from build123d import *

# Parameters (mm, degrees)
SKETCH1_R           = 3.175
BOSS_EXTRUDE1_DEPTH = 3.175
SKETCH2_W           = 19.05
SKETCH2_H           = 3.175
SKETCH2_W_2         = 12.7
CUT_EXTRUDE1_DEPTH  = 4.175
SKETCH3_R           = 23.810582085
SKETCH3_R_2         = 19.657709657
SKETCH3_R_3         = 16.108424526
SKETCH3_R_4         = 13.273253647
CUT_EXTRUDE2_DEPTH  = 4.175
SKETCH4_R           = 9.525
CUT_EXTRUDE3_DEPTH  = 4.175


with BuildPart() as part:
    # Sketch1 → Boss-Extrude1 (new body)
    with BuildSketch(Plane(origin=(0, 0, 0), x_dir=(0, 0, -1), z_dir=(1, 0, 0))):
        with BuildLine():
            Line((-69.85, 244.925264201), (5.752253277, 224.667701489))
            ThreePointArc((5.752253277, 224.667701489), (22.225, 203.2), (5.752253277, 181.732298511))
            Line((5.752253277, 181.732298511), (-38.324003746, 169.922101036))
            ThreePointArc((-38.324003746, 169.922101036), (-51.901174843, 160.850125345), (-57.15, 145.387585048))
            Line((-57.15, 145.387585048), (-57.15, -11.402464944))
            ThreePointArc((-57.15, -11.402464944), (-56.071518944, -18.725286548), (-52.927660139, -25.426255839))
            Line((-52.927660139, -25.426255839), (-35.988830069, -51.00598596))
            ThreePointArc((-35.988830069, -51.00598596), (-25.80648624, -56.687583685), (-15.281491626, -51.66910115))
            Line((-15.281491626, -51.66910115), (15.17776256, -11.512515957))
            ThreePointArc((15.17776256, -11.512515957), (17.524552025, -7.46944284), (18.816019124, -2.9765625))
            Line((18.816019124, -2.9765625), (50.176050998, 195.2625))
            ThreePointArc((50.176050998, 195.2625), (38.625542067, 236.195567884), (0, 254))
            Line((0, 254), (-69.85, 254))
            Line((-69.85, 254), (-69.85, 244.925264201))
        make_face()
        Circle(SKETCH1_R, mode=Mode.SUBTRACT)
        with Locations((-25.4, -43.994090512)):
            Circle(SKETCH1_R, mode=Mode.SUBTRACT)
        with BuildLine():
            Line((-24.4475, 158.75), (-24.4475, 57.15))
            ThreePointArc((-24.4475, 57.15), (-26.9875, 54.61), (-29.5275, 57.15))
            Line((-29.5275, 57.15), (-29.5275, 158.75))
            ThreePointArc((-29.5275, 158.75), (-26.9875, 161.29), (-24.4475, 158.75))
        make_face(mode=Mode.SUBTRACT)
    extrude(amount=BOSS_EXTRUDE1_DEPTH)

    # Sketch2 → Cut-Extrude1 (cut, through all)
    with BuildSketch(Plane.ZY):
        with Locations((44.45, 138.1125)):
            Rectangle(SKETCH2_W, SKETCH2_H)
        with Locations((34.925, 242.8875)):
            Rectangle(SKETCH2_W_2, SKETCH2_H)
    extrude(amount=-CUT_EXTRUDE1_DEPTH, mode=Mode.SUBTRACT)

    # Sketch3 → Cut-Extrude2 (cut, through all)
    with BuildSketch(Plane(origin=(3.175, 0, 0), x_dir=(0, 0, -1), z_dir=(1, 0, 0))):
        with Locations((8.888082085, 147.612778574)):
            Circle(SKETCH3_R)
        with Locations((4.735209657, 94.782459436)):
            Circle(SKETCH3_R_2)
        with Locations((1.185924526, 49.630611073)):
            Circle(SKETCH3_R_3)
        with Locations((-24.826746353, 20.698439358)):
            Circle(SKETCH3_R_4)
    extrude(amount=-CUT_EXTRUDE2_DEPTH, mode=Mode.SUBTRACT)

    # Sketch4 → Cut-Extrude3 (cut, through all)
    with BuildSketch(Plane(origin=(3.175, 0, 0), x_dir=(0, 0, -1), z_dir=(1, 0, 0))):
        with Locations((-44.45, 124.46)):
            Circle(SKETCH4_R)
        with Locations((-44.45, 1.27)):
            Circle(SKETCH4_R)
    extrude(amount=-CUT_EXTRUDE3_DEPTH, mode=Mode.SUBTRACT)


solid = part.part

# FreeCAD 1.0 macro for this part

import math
import FreeCAD as App
import Part
import Sketcher
Q = App.Units.Quantity


def add_polygon(sketch, points):
    """Adds a closed chain of lines whose ends are joined by coincident constraints."""
    first, n = sketch.GeometryCount, len(points)
    for a, b in zip(points, points[1:] + points[:1]):
        sketch.addGeometry(Part.LineSegment(App.Vector(*a, 0), App.Vector(*b, 0)), False)
    for i in range(n):
        sketch.addConstraint(Sketcher.Constraint("Coincident", first + i, 2, first + (i + 1) % n, 1))

doc = App.newDocument("Part")
body = doc.addObject("PartDesign::Body", "Body")

# Sketch on YZ plane
sketch1 = body.newObject("Sketcher::SketchObject", "Sketch")
sketch1.AttachmentSupport = (doc.getObject("YZ_Plane"), [""])
sketch1.MapMode = "FlatFace"
sketch1.addGeometry([
    Part.LineSegment(App.Vector(244.9, 69.8, 0), App.Vector(224.7, -5.8, 0)),  # 0
    Part.ArcOfCircle(Part.Circle(App.Vector(203.2, 0, 0), App.Vector(0, 0, 1), 22.2), math.radians(-165), math.radians(-15)),  # 1
    Part.LineSegment(App.Vector(181.7, -5.8, 0), App.Vector(169.9, 38.3, 0)),  # 2
    Part.ArcOfCircle(Part.Circle(App.Vector(145.4, 31.7, 0), App.Vector(0, 0, 1), 25.4), math.radians(15), math.radians(90)),  # 3
    Part.LineSegment(App.Vector(145.4, 57.1, 0), App.Vector(-11.4, 57.1, 0)),  # 4
    Part.ArcOfCircle(Part.Circle(App.Vector(-11.4, 31.7, 0), App.Vector(0, 0, 1), 25.4), math.radians(90), math.radians(124)),  # 5
    Part.LineSegment(App.Vector(-25.4, 52.9, 0), App.Vector(-51, 36, 0)),  # 6
    Part.ArcOfCircle(Part.Circle(App.Vector(-44, 25.4, 0), App.Vector(0, 0, 1), 12.7), math.radians(124), math.radians(233)),  # 7
    Part.LineSegment(App.Vector(-51.7, 15.3, 0), App.Vector(-11.5, -15.2, 0)),  # 8
    Part.ArcOfCircle(Part.Circle(App.Vector(0, 0, 0), App.Vector(0, 0, 1), 19), math.radians(-127), math.radians(-99)),  # 9
    Part.LineSegment(App.Vector(-3, -18.8, 0), App.Vector(195.3, -50.2, 0)),  # 10
    Part.ArcOfCircle(Part.Circle(App.Vector(203.2, 0, 0), App.Vector(0, 0, 1), 50.8), math.radians(-99), math.radians(0)),  # 11
    Part.LineSegment(App.Vector(254, 0, 0), App.Vector(254, 69.8, 0)),  # 12
    Part.LineSegment(App.Vector(254, 69.8, 0), App.Vector(244.9, 69.8, 0)),  # 13
    Part.Circle(App.Vector(-44, 25.4, 0), App.Vector(0, 0, 1), 3.2),  # 14
    Part.Circle(App.Vector(0, 0, 0), App.Vector(0, 0, 1), 3.2),  # 15
    Part.ArcOfCircle(Part.Circle(App.Vector(158.8, 27, 0), App.Vector(0, 0, 1), 2.5), math.radians(-90), math.radians(90)),  # 16
    Part.LineSegment(App.Vector(158.8, 24.4, 0), App.Vector(57.1, 24.4, 0)),  # 17
    Part.ArcOfCircle(Part.Circle(App.Vector(57.1, 27, 0), App.Vector(0, 0, 1), 2.5), math.radians(90), math.radians(270)),  # 18
    Part.LineSegment(App.Vector(57.1, 29.5, 0), App.Vector(158.8, 29.5, 0)),  # 19
], False)
sketch1.addConstraint([
    Sketcher.Constraint("Tangent", 0, 2, 1, 2),
    Sketcher.Constraint("Tangent", 1, 1, 2, 1),
    Sketcher.Constraint("Tangent", 2, 2, 3, 1),
    Sketcher.Constraint("Tangent", 3, 2, 4, 1),
    Sketcher.Constraint("Tangent", 4, 2, 5, 1),
    Sketcher.Constraint("Tangent", 5, 2, 6, 1),
    Sketcher.Constraint("Tangent", 6, 2, 7, 1),
    Sketcher.Constraint("Tangent", 7, 2, 8, 1),
    Sketcher.Constraint("Tangent", 8, 2, 9, 1),
    Sketcher.Constraint("Tangent", 9, 2, 10, 1),
    Sketcher.Constraint("Tangent", 10, 2, 11, 1),
    Sketcher.Constraint("Tangent", 11, 2, 12, 1),
    Sketcher.Constraint("Coincident", 12, 2, 13, 1),
    Sketcher.Constraint("Coincident", 13, 2, 0, 1),
    Sketcher.Constraint("Tangent", 16, 1, 17, 1),
    Sketcher.Constraint("Tangent", 17, 2, 18, 2),
    Sketcher.Constraint("Tangent", 18, 1, 19, 1),
    Sketcher.Constraint("Tangent", 19, 2, 16, 2),
    Sketcher.Constraint("Horizontal", 4),
    Sketcher.Constraint("Vertical", 12),
    Sketcher.Constraint("Horizontal", 13),
    Sketcher.Constraint("Horizontal", 17),
    Sketcher.Constraint("Horizontal", 19),
    Sketcher.Constraint("Coincident", 9, 3, -1, 1),
    Sketcher.Constraint("Coincident", 15, 3, -1, 1),
    Sketcher.Constraint("Coincident", 11, 3, 1, 3),
    Sketcher.Constraint("Coincident", 14, 3, 7, 3),
    Sketcher.Constraint("Equal", 3, 5),
    Sketcher.Constraint("Equal", 14, 15),
    Sketcher.Constraint("PointOnObject", 1, 3, -1),
    Sketcher.Constraint("Horizontal", 0, 2, 1, 1),
    Sketcher.Constraint("Radius", 3, Q("1 in")),
    Sketcher.Constraint("Radius", 11, Q("2 in")),
    Sketcher.Constraint("Radius", 7, Q("0.5 in")),
    Sketcher.Constraint("Radius", 16, Q("0.1 in")),
    Sketcher.Constraint("Diameter", 14, Q("0.25 in")),
    Sketcher.Constraint("DistanceX", 17, 2, 17, 1, Q("4 in")),
    Sketcher.Constraint("Radius", 9, Q("0.75 in")),
    Sketcher.Constraint("DistanceX", -1, 1, 1, 3, Q("8 in")),
    Sketcher.Constraint("DistanceY", -1, 1, 7, 3, Q("1 in")),
    Sketcher.Constraint("Angle", 0, Q("-105 deg")),
    Sketcher.Constraint("Radius", 1, Q("0.875 in")),
    Sketcher.Constraint("DistanceY", 12, 1, 12, 2, Q("2.75 in")),
    Sketcher.Constraint("DistanceY", -1, 1, 3, 3, Q("1.25 in")),
    Sketcher.Constraint("DistanceX", -1, 1, 16, 3, Q("6.25 in")),
    Sketcher.Constraint("DistanceY", -1, 1, 16, 3, Q("1.0625 in")),
    Sketcher.Constraint("DistanceX", 4, 2, 4, 1, Q("156.79005 mm")),
    Sketcher.Constraint("DistanceX", 7, 2, -1, 1, Q("51.669101 mm")),
])
pad1 = body.newObject("PartDesign::Pad", "Pad")
pad1.Profile = sketch1
pad1.Length = Q("0.125 in")

# Sketch on YZ plane
sketch2 = body.newObject("Sketcher::SketchObject", "Sketch001")
sketch2.AttachmentSupport = (doc.getObject("YZ_Plane"), [""])
sketch2.MapMode = "FlatFace"
add_polygon(sketch2, [(139.7, 34.9), (136.5, 34.9), (136.5, 54), (139.7, 54)])  # lines 0-3
add_polygon(sketch2, [(244.5, 28.6), (241.3, 28.6), (241.3, 41.3), (244.5, 41.3)])  # lines 4-7
sketch2.addConstraint([
    Sketcher.Constraint("Horizontal", 0),
    Sketcher.Constraint("Vertical", 1),
    Sketcher.Constraint("Horizontal", 2),
    Sketcher.Constraint("Vertical", 3),
    Sketcher.Constraint("Horizontal", 4),
    Sketcher.Constraint("Vertical", 5),
    Sketcher.Constraint("Horizontal", 6),
    Sketcher.Constraint("Vertical", 7),
    Sketcher.Constraint("Equal", 2, 4),
    Sketcher.Constraint("DistanceY", 5, 1, 5, 2, Q("0.5 in")),
    Sketcher.Constraint("DistanceX", 3, 2, 4, 2, Q("4 in")),
    Sketcher.Constraint("DistanceY", 4, 2, 2, 2, Q("1 in")),
    Sketcher.Constraint("DistanceY", 1, 1, 1, 2, Q("0.75 in")),
    Sketcher.Constraint("DistanceX", -1, 1, 2, 2, Q("5.5 in")),
    Sketcher.Constraint("DistanceX", 0, 2, 0, 1, Q("0.125 in")),
    Sketcher.Constraint("DistanceY", -1, 1, 0, 2, Q("1.375 in")),
])
pocket1 = body.newObject("PartDesign::Pocket", "Pocket")
pocket1.Profile = sketch2
pocket1.Type = "ThroughAll"
pocket1.Reversed = True

# Sketch on YZ plane
sketch3 = body.newObject("Sketcher::SketchObject", "Sketch002")
sketch3.AttachmentSupport = (doc.getObject("YZ_Plane"), [""])
sketch3.MapMode = "FlatFace"
sketch3.AttachmentOffset = App.Placement(App.Vector(0, 0, 0.125 * 25.4), App.Rotation())
sketch3.addGeometry([
    Part.Circle(App.Vector(148, -9, 0), App.Vector(0, 0, 1), 24),
    Part.Circle(App.Vector(95, -5, 0), App.Vector(0, 0, 1), 20),
    Part.Circle(App.Vector(50, -1, 0), App.Vector(0, 0, 1), 16),
    Part.Circle(App.Vector(21, 25, 0), App.Vector(0, 0, 1), 13),
], False)
sketch3.addConstraint([
    Sketcher.Constraint("Diameter", 1, Q("39.315419 mm")),
    Sketcher.Constraint("Diameter", 2, Q("32.216849 mm")),
    Sketcher.Constraint("Diameter", 0, Q("47.621164 mm")),
    Sketcher.Constraint("Diameter", 3, Q("26.546507 mm")),
    Sketcher.Constraint("DistanceX", -1, 1, 0, 3, Q("147.612779 mm")),
    Sketcher.Constraint("DistanceX", -1, 1, 1, 3, Q("94.782459 mm")),
    Sketcher.Constraint("DistanceY", 1, 3, -1, 1, Q("4.73521 mm")),
    Sketcher.Constraint("DistanceX", -1, 1, 2, 3, Q("49.630611 mm")),
    Sketcher.Constraint("DistanceX", -1, 1, 3, 3, Q("20.698439 mm")),
    Sketcher.Constraint("DistanceY", 2, 3, 3, 3, Q("26.012671 mm")),
    Sketcher.Constraint("DistanceY", 0, 3, 3, 3, Q("33.714828 mm")),
    Sketcher.Constraint("DistanceY", 0, 3, -1, 1, Q("8.888082 mm")),
])
pocket2 = body.newObject("PartDesign::Pocket", "Pocket001")
pocket2.Profile = sketch3
pocket2.Type = "ThroughAll"

# Sketch on YZ plane
sketch4 = body.newObject("Sketcher::SketchObject", "Sketch003")
sketch4.AttachmentSupport = (doc.getObject("YZ_Plane"), [""])
sketch4.MapMode = "FlatFace"
sketch4.AttachmentOffset = App.Placement(App.Vector(0, 0, 0.125 * 25.4), App.Rotation())
sketch4.addGeometry([
    Part.Circle(App.Vector(124, 44, 0), App.Vector(0, 0, 1), 10),
    Part.Circle(App.Vector(1, 44, 0), App.Vector(0, 0, 1), 10),
], False)
sketch4.addConstraint([
    Sketcher.Constraint("Equal", 0, 1),
    Sketcher.Constraint("Horizontal", 0, 3, 1, 3),
    Sketcher.Constraint("Diameter", 0, Q("0.75 in")),
    Sketcher.Constraint("DistanceX", -1, 1, 0, 3, Q("4.9 in")),
    Sketcher.Constraint("DistanceY", -1, 1, 0, 3, Q("1.75 in")),
    Sketcher.Constraint("DistanceX", -1, 1, 1, 3, Q("0.05 in")),
])
pocket3 = body.newObject("PartDesign::Pocket", "Pocket002")
pocket3.Profile = sketch4
pocket3.Type = "ThroughAll"

doc.recompute()
